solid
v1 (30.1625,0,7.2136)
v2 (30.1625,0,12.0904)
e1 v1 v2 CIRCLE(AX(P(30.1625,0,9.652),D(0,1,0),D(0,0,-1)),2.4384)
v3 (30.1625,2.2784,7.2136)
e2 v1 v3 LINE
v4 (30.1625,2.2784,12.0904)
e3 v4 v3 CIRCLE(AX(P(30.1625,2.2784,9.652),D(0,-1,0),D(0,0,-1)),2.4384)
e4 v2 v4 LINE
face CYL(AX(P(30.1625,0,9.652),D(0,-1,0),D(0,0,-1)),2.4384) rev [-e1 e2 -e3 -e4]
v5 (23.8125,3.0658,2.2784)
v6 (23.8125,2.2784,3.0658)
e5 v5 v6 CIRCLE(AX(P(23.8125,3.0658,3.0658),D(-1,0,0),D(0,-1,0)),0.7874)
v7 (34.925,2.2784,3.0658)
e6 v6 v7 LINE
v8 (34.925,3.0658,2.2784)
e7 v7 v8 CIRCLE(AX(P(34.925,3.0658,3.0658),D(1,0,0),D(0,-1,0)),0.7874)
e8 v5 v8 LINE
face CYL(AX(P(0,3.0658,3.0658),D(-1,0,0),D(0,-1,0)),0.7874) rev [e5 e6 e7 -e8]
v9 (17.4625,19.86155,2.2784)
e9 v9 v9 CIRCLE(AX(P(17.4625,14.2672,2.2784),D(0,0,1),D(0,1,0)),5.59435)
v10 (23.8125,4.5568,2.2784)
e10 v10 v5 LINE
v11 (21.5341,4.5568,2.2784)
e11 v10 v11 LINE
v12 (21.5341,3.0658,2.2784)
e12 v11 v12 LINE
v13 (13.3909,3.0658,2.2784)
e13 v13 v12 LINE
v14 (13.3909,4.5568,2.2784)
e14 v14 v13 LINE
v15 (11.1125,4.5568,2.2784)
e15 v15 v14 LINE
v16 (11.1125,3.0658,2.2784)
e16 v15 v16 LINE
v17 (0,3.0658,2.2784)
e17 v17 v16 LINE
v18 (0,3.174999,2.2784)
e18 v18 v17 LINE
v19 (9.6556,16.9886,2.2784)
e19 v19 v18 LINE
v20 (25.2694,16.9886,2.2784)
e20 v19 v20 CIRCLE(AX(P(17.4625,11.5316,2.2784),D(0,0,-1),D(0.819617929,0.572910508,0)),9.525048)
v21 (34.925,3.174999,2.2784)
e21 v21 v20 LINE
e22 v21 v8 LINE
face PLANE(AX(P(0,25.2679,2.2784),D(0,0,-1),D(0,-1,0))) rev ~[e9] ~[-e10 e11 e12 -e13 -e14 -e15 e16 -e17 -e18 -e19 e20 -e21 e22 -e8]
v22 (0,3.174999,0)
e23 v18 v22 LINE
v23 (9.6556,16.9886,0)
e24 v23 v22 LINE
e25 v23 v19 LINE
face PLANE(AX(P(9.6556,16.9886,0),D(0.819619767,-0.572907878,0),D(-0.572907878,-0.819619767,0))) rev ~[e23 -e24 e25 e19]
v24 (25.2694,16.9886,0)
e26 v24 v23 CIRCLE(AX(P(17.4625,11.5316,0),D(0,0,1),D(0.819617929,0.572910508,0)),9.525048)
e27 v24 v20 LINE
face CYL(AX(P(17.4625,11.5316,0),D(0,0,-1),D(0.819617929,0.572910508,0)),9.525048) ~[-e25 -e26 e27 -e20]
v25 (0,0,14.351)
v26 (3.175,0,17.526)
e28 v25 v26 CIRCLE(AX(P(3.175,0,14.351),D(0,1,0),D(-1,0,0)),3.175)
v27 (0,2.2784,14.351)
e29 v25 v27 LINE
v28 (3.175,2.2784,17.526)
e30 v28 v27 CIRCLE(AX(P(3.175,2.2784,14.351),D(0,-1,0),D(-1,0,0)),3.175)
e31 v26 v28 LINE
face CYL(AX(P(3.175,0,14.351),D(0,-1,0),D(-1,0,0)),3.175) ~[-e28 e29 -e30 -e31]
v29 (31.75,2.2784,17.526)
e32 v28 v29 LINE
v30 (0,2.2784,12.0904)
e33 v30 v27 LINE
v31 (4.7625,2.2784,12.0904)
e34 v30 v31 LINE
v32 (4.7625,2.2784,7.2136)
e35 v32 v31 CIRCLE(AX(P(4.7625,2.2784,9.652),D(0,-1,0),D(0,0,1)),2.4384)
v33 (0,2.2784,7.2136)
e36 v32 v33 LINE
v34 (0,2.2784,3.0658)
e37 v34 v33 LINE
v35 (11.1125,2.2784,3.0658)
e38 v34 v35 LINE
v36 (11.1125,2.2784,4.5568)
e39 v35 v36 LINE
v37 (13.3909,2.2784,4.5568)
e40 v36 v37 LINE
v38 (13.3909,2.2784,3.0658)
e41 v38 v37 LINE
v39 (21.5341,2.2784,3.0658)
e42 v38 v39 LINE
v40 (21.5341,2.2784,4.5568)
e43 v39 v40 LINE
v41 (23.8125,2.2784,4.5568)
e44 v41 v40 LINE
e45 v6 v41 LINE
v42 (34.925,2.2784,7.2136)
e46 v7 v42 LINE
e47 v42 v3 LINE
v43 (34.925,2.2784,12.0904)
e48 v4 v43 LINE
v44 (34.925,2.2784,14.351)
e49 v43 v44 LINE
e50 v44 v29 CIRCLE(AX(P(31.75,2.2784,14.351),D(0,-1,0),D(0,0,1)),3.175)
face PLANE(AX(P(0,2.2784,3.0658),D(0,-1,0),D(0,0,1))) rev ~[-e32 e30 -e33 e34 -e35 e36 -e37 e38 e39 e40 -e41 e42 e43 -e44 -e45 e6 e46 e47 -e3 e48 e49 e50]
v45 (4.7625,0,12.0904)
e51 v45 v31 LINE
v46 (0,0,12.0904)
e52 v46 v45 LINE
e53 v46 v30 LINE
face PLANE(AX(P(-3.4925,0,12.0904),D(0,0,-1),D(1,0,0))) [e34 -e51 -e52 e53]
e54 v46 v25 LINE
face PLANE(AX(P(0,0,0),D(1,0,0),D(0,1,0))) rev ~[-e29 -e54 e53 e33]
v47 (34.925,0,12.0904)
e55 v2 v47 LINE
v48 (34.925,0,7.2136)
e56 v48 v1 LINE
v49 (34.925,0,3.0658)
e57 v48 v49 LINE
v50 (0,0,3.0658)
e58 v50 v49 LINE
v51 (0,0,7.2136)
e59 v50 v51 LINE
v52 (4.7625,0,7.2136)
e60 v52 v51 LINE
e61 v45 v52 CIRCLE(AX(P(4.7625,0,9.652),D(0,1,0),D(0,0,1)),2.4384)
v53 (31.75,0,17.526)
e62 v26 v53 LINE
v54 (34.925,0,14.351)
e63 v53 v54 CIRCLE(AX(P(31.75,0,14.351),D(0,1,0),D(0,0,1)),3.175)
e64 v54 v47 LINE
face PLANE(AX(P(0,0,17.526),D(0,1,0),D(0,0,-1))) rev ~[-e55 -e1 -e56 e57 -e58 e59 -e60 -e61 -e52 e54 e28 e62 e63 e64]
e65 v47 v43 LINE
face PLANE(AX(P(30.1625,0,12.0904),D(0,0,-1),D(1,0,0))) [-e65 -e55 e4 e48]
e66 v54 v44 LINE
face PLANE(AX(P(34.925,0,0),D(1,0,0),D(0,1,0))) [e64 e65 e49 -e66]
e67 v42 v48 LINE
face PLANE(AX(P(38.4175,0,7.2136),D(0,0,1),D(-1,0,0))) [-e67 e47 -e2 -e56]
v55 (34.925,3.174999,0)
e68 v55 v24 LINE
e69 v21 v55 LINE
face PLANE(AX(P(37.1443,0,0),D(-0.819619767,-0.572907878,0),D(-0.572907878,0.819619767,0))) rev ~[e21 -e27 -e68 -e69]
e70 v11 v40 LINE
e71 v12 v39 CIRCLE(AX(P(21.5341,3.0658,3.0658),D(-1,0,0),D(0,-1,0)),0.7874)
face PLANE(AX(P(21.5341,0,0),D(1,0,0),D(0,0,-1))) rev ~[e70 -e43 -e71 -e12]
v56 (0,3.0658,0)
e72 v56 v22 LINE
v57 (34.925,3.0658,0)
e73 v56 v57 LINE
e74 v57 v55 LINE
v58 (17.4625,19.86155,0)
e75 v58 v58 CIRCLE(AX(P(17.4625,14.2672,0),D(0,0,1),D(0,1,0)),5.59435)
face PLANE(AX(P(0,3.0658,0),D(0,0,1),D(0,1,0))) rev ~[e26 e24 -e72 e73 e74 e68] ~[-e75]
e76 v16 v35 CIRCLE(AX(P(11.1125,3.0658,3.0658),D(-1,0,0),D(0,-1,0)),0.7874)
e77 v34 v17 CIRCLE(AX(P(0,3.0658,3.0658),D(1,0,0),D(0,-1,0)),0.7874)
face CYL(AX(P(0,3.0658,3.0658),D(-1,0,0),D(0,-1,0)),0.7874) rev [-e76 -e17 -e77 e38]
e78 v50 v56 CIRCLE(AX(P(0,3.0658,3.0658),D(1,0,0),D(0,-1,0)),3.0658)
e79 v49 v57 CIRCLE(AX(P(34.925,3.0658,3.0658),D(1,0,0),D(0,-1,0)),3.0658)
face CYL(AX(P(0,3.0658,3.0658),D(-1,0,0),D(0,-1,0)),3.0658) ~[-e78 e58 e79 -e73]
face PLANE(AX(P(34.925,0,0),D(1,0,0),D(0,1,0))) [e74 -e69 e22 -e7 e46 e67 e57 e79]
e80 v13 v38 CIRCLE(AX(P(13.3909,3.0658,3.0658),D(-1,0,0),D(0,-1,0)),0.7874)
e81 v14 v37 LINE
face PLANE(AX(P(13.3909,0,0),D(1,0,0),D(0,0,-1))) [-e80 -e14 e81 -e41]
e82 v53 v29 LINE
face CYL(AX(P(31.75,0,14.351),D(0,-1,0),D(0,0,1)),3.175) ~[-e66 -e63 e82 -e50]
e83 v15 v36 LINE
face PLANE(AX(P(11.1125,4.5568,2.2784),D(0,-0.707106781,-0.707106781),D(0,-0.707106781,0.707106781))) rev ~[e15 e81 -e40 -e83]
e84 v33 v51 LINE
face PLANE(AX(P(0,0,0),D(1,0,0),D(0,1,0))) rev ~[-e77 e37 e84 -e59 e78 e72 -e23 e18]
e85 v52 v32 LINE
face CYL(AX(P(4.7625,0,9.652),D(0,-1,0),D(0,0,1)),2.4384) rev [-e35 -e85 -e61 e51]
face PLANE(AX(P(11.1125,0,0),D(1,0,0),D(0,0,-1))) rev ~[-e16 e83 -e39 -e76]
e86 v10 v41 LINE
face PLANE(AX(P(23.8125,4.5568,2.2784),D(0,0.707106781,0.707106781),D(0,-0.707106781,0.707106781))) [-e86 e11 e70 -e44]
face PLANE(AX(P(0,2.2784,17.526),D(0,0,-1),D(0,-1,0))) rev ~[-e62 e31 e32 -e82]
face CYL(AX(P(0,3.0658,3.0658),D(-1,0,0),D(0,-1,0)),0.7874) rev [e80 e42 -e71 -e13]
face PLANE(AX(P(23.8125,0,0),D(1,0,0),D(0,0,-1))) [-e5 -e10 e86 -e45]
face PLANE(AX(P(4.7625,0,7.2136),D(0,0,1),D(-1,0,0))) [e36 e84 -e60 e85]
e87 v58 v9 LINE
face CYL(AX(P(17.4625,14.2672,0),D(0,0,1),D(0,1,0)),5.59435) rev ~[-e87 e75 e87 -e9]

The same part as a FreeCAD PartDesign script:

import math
import FreeCAD as App
import Part
import Sketcher
Q = App.Units.Quantity

doc = App.newDocument("Part")
params = doc.addObject("Spreadsheet::Sheet", "Params")
for row, (alias, value) in enumerate([
    ("sketch1_radius", "0.031 in"),
    ("pad1_length", "1.375 in"),
    ("sketch2_radius", "0.375 in"),
    ("sketch2_width", "1.925 in"),
    ("pocket1_length", "3.4176 mm"),
    ("hole_diameter", "0.4405 in"),
    ("hole_depth", "3.4176 mm"),
    ("sketch4_radius", "0.125 in"),
    ("sketch4_height", "0.19 in"),
    ("sketch4_width", "0.8125 in"),
    ("sketch4_height2", "0.315 in"),
    ("pocket2_length", "3.4176 mm"),
    ("sketch5_radius", "0.125 in"),
    ("sketch5_height", "0.19 in"),
    ("sketch5_width", "0.8125 in"),
    ("sketch5_width2", "0.6875 in"),
    ("pocket3_length", "3.4176 mm"),
    ("sketch6_radius", "0.096 in"),
    ("sketch6_width", "0.325 in"),
    ("pocket4_length", "3.4176 mm"),
    ("sketch7_radius", "0.096 in"),
    ("sketch7_width", "0.325 in"),
    ("pocket5_length", "3.4176 mm"),
    ("pad2_length", "0.0897008 in"),
    ("pad3_length", "0.0897008 in"),
], start=1):
    params.set(f"A{row}", alias)
    params.set(f"B{row}", "=" + value)
    params.setAlias(f"B{row}", alias)

body = doc.addObject("PartDesign::Body", "Body")

sketch1 = doc.addObject("Sketcher::SketchObject", "Sketch")
body.addObject(sketch1)
sketch1.AttachmentSupport = (doc.YZ_Plane, [""])
sketch1.MapMode = "FlatFace"
sketch1.addGeometry(Part.LineSegment(App.Vector(2.2784, 3.0658, 0), App.Vector(2.2784, 17.526, 0)), False)
sketch1.addGeometry(Part.LineSegment(App.Vector(2.2784, 17.526, 0), App.Vector(0, 17.526, 0)), False)
sketch1.addGeometry(Part.LineSegment(App.Vector(0, 17.526, 0), App.Vector(0, 3.0658, 0)), False)
sketch1.addGeometry(Part.ArcOfCircle(Part.Circle(App.Vector(3.0658, 3.0658, 0), App.Vector(0, 0, 1), 3.0658), math.radians(180), math.radians(270)), False)
sketch1.addGeometry(Part.LineSegment(App.Vector(3.0658, 0, 0), App.Vector(25.2679, 0, 0)), False)
sketch1.addGeometry(Part.LineSegment(App.Vector(25.2679, 0, 0), App.Vector(25.2679, 2.2784, 0)), False)
sketch1.addGeometry(Part.LineSegment(App.Vector(25.2679, 2.2784, 0), App.Vector(3.0658, 2.2784, 0)), False)
sketch1.addGeometry(Part.ArcOfCircle(Part.Circle(App.Vector(3.0658, 3.0658, 0), App.Vector(0, 0, 1), 0.7874), math.radians(180), math.radians(270)), False)
sketch1.addConstraint(Sketcher.Constraint("Coincident", 0, 2, 1, 1))
sketch1.addConstraint(Sketcher.Constraint("Coincident", 1, 2, 2, 1))
sketch1.addConstraint(Sketcher.Constraint("Tangent", 2, 2, 3, 1))
sketch1.addConstraint(Sketcher.Constraint("Tangent", 3, 2, 4, 1))
sketch1.addConstraint(Sketcher.Constraint("Coincident", 4, 2, 5, 1))
sketch1.addConstraint(Sketcher.Constraint("Coincident", 5, 2, 6, 1))
sketch1.addConstraint(Sketcher.Constraint("Tangent", 6, 2, 7, 2))
sketch1.addConstraint(Sketcher.Constraint("Tangent", 7, 1, 0, 1))
sketch1.addConstraint(Sketcher.Constraint("Vertical", 0))
sketch1.addConstraint(Sketcher.Constraint("Horizontal", 1))
sketch1.addConstraint(Sketcher.Constraint("Vertical", 2))
sketch1.addConstraint(Sketcher.Constraint("Horizontal", 4))
sketch1.addConstraint(Sketcher.Constraint("Vertical", 5))
sketch1.addConstraint(Sketcher.Constraint("Horizontal", 6))
sketch1.addConstraint(Sketcher.Constraint("Coincident", 7, 3, 3, 3))
sketch1.addConstraint(Sketcher.Constraint("PointOnObject", 1, 2, -2))
sketch1.addConstraint(Sketcher.Constraint("PointOnObject", 3, 2, -1))
sketch1.addConstraint(Sketcher.Constraint("Radius", 7, Q("0.031 in")))
sketch1.addConstraint(Sketcher.Constraint("Radius", 3, Q("0.1207 in")))
sketch1.addConstraint(Sketcher.Constraint("DistanceY", -1, 1, 0, 2, Q("0.69 in")))
sketch1.addConstraint(Sketcher.Constraint("DistanceX", 4, 1, 4, 2, Q("0.8741 in")))
sketch1.setExpression("Constraints[17]", "Params.sketch1_radius")
pad1 = doc.addObject("PartDesign::Pad", "Pad")
body.addObject(pad1)
pad1.Profile = sketch1
pad1.setExpression("Length", "Params.pad1_length")

sketch2 = doc.addObject("Sketcher::SketchObject", "Sketch001")
body.addObject(sketch2)
sketch2.AttachmentSupport = (doc.XY_Plane, [""])
sketch2.MapMode = "FlatFace"
sketch2.addGeometry(Part.LineSegment(App.Vector(41.91, 33.6906, 0), App.Vector(-6.985, 33.6906, 0)), False)
sketch2.addGeometry(Part.LineSegment(App.Vector(-6.985, 33.6906, 0), App.Vector(-6.985, -2.1057, 0)), False)
sketch2.addGeometry(Part.LineSegment(App.Vector(-6.985, -2.1057, 0), App.Vector(41.91, -2.1057, 0)), False)
sketch2.addGeometry(Part.LineSegment(App.Vector(41.91, -2.1057, 0), App.Vector(41.91, 33.6906, 0)), False)
sketch2.addGeometry(Part.LineSegment(App.Vector(37.1443, 0, 0), App.Vector(-2.2193, 0, 0)), False)
sketch2.addGeometry(Part.LineSegment(App.Vector(-2.2193, 0, 0), App.Vector(9.6556, 16.9886, 0)), False)
sketch2.addGeometry(Part.ArcOfCircle(Part.Circle(App.Vector(17.4625, 11.5316, 0), App.Vector(0, 0, 1), 9.525048), math.radians(34.953435), math.radians(145.046565)), False)
sketch2.addGeometry(Part.LineSegment(App.Vector(25.2694, 16.9886, 0), App.Vector(37.1443, 0, 0)), False)
sketch2.addConstraint(Sketcher.Constraint("Coincident", 0, 2, 1, 1))
sketch2.addConstraint(Sketcher.Constraint("Coincident", 1, 2, 2, 1))
sketch2.addConstraint(Sketcher.Constraint("Coincident", 2, 2, 3, 1))
sketch2.addConstraint(Sketcher.Constraint("Coincident", 3, 2, 0, 1))
sketch2.addConstraint(Sketcher.Constraint("Coincident", 4, 2, 5, 1))
sketch2.addConstraint(Sketcher.Constraint("Tangent", 5, 2, 6, 2))
sketch2.addConstraint(Sketcher.Constraint("Tangent", 6, 1, 7, 1))
sketch2.addConstraint(Sketcher.Constraint("Coincident", 7, 2, 4, 1))
sketch2.addConstraint(Sketcher.Constraint("Horizontal", 0))
sketch2.addConstraint(Sketcher.Constraint("Vertical", 1))
sketch2.addConstraint(Sketcher.Constraint("Horizontal", 2))
sketch2.addConstraint(Sketcher.Constraint("Vertical", 3))
sketch2.addConstraint(Sketcher.Constraint("Horizontal", 4))
sketch2.addConstraint(Sketcher.Constraint("PointOnObject", 4, 2, -1))
sketch2.addConstraint(Sketcher.Constraint("Horizontal", 5, 2, 6, 1))
sketch2.addConstraint(Sketcher.Constraint("Radius", 6, Q("0.375 in")))
sketch2.addConstraint(Sketcher.Constraint("DistanceX", 0, 2, 0, 1, Q("1.925 in")))
sketch2.addConstraint(Sketcher.Constraint("DistanceX", -1, 1, 2, 2, Q("1.65 in")))
sketch2.addConstraint(Sketcher.Constraint("DistanceY", 1, 2, 1, 1, Q("1.4093 in")))
sketch2.addConstraint(Sketcher.Constraint("DistanceX", -1, 1, 6, 3, Q("0.6875 in")))
sketch2.addConstraint(Sketcher.Constraint("DistanceY", -1, 1, 6, 3, Q("0.454 in")))
sketch2.addConstraint(Sketcher.Constraint("DistanceX", 4, 2, 4, 1, Q("39.3636 mm")))
sketch2.addConstraint(Sketcher.Constraint("DistanceY", -1, 1, 0, 2, Q("1.3264 in")))
sketch2.setExpression("Constraints[15]", "Params.sketch2_radius")
sketch2.setExpression("Constraints[16]", "Params.sketch2_width")
pocket1 = doc.addObject("PartDesign::Pocket", "Pocket")
body.addObject(pocket1)
pocket1.Profile = sketch2
pocket1.setExpression("Length", "Params.pocket1_length")
pocket1.Reversed = True

sketch3 = doc.addObject("Sketcher::SketchObject", "Sketch002")
body.addObject(sketch3)
sketch3.AttachmentSupport = (doc.XY_Plane, [""])
sketch3.MapMode = "FlatFace"
sketch3.addGeometry(Part.Circle(App.Vector(17.4625, 14.2672, 0), App.Vector(0, 0, 1), 5.59435), False)
sketch3.addConstraint(Sketcher.Constraint("Diameter", 0, Q("0.4405 in")))
sketch3.addConstraint(Sketcher.Constraint("DistanceX", -1, 1, 0, 3, Q("0.6875 in")))
sketch3.addConstraint(Sketcher.Constraint("DistanceY", -1, 1, 0, 3, Q("0.5617 in")))
doc.recompute()
hole = doc.addObject("PartDesign::Hole", "Hole")
body.addObject(hole)
hole.Profile = sketch3
hole.ThreadType = "None"
hole.setExpression("Diameter", "Params.hole_diameter")
hole.DepthType = "Dimension"
hole.setExpression("Depth", "Params.hole_depth")
hole.DrillPoint = "Flat"
hole.Reversed = True

sketch4 = doc.addObject("Sketcher::SketchObject", "Sketch003")
body.addObject(sketch4)
sketch4.AttachmentSupport = (doc.XZ_Plane, [""])
sketch4.MapMode = "FlatFace"
sketch4.addGeometry(Part.LineSegment(App.Vector(-17.4625, 14.351, 0), App.Vector(-17.4625, 22.352, 0)), False)
sketch4.addGeometry(Part.LineSegment(App.Vector(-17.4625, 22.352, 0), App.Vector(3.175, 22.352, 0)), False)
sketch4.addGeometry(Part.LineSegment(App.Vector(3.175, 22.352, 0), App.Vector(3.175, 17.526, 0)), False)
sketch4.addGeometry(Part.ArcOfCircle(Part.Circle(App.Vector(3.175, 14.351, 0), App.Vector(0, 0, 1), 3.175), math.radians(90), math.radians(180)), False)
sketch4.addGeometry(Part.LineSegment(App.Vector(0, 14.351, 0), App.Vector(-17.4625, 14.351, 0)), False)
sketch4.addConstraint(Sketcher.Constraint("Coincident", 0, 2, 1, 1))
sketch4.addConstraint(Sketcher.Constraint("Coincident", 1, 2, 2, 1))
sketch4.addConstraint(Sketcher.Constraint("Coincident", 2, 2, 3, 1))
sketch4.addConstraint(Sketcher.Constraint("Coincident", 3, 2, 4, 1))
sketch4.addConstraint(Sketcher.Constraint("Coincident", 4, 2, 0, 1))
sketch4.addConstraint(Sketcher.Constraint("Vertical", 0))
sketch4.addConstraint(Sketcher.Constraint("Horizontal", 1))
sketch4.addConstraint(Sketcher.Constraint("Vertical", 2))
sketch4.addConstraint(Sketcher.Constraint("Horizontal", 4))
sketch4.addConstraint(Sketcher.Constraint("PointOnObject", 3, 2, -2))
sketch4.addConstraint(Sketcher.Constraint("Vertical", 3, 3, 1, 2))
sketch4.addConstraint(Sketcher.Constraint("Radius", 3, Q("0.125 in")))
sketch4.addConstraint(Sketcher.Constraint("DistanceY", 2, 2, 2, 1, Q("0.19 in")))
sketch4.addConstraint(Sketcher.Constraint("DistanceX", 1, 1, 1, 2, Q("0.8125 in")))
sketch4.addConstraint(Sketcher.Constraint("DistanceY", 0, 1, 0, 2, Q("0.315 in")))
sketch4.addConstraint(Sketcher.Constraint("DistanceY", -1, 1, 0, 2, Q("0.88 in")))
sketch4.setExpression("Constraints[11]", "Params.sketch4_radius")
sketch4.setExpression("Constraints[12]", "Params.sketch4_height")
sketch4.setExpression("Constraints[13]", "Params.sketch4_width")
sketch4.setExpression("Constraints[14]", "Params.sketch4_height2")
pocket2 = doc.addObject("PartDesign::Pocket", "Pocket001")
body.addObject(pocket2)
pocket2.Profile = sketch4
pocket2.setExpression("Length", "Params.pocket2_length")

sketch5 = doc.addObject("Sketcher::SketchObject", "Sketch004")
body.addObject(sketch5)
sketch5.AttachmentSupport = (doc.XZ_Plane, [""])
sketch5.MapMode = "FlatFace"
sketch5.addGeometry(Part.ArcOfCircle(Part.Circle(App.Vector(31.75, 14.351, 0), App.Vector(0, 0, 1), 3.175), math.radians(0), math.radians(90)), False)
sketch5.addGeometry(Part.LineSegment(App.Vector(31.75, 17.526, 0), App.Vector(31.75, 22.352, 0)), False)
sketch5.addGeometry(Part.LineSegment(App.Vector(31.75, 22.352, 0), App.Vector(52.3875, 22.352, 0)), False)
sketch5.addGeometry(Part.LineSegment(App.Vector(52.3875, 22.352, 0), App.Vector(52.3875, 14.351, 0)), False)
sketch5.addGeometry(Part.LineSegment(App.Vector(52.3875, 14.351, 0), App.Vector(34.925, 14.351, 0)), False)
sketch5.addConstraint(Sketcher.Constraint("Coincident", 0, 2, 1, 1))
sketch5.addConstraint(Sketcher.Constraint("Coincident", 1, 2, 2, 1))
sketch5.addConstraint(Sketcher.Constraint("Coincident", 2, 2, 3, 1))
sketch5.addConstraint(Sketcher.Constraint("Coincident", 3, 2, 4, 1))
sketch5.addConstraint(Sketcher.Constraint("Coincident", 4, 2, 0, 1))
sketch5.addConstraint(Sketcher.Constraint("Vertical", 1))
sketch5.addConstraint(Sketcher.Constraint("Horizontal", 2))
sketch5.addConstraint(Sketcher.Constraint("Vertical", 3))
sketch5.addConstraint(Sketcher.Constraint("Horizontal", 4))
sketch5.addConstraint(Sketcher.Constraint("Horizontal", 0, 3, 3, 2))
sketch5.addConstraint(Sketcher.Constraint("Radius", 0, Q("0.125 in")))
sketch5.addConstraint(Sketcher.Constraint("DistanceY", 1, 1, 1, 2, Q("0.19 in")))
sketch5.addConstraint(Sketcher.Constraint("DistanceX", 2, 1, 2, 2, Q("0.8125 in")))
sketch5.addConstraint(Sketcher.Constraint("DistanceX", 4, 2, 4, 1, Q("0.6875 in")))
sketch5.addConstraint(Sketcher.Constraint("DistanceX", -1, 1, 0, 3, Q("1.25 in")))
sketch5.addConstraint(Sketcher.Constraint("DistanceY", -1, 1, 0, 2, Q("0.69 in")))
sketch5.setExpression("Constraints[10]", "Params.sketch5_radius")
sketch5.setExpression("Constraints[11]", "Params.sketch5_height")
sketch5.setExpression("Constraints[12]", "Params.sketch5_width")
sketch5.setExpression("Constraints[13]", "Params.sketch5_width2")
pocket3 = doc.addObject("PartDesign::Pocket", "Pocket002")
body.addObject(pocket3)
pocket3.Profile = sketch5
pocket3.setExpression("Length", "Params.pocket3_length")

sketch6 = doc.addObject("Sketcher::SketchObject", "Sketch005")
body.addObject(sketch6)
sketch6.AttachmentSupport = (doc.XZ_Plane, [""])
sketch6.MapMode = "FlatFace"
sketch6.addGeometry(Part.LineSegment(App.Vector(4.7625, 7.2136, 0), App.Vector(-3.4925, 7.2136, 0)), False)
sketch6.addGeometry(Part.LineSegment(App.Vector(-3.4925, 7.2136, 0), App.Vector(-3.4925, 12.0904, 0)), False)
sketch6.addGeometry(Part.LineSegment(App.Vector(-3.4925, 12.0904, 0), App.Vector(4.7625, 12.0904, 0)), False)
sketch6.addGeometry(Part.ArcOfCircle(Part.Circle(App.Vector(4.7625, 9.652, 0), App.Vector(0, 0, 1), 2.4384), math.radians(-90), math.radians(90)), False)
sketch6.addConstraint(Sketcher.Constraint("Coincident", 0, 2, 1, 1))
sketch6.addConstraint(Sketcher.Constraint("Coincident", 1, 2, 2, 1))
sketch6.addConstraint(Sketcher.Constraint("Tangent", 2, 2, 3, 2))
sketch6.addConstraint(Sketcher.Constraint("Tangent", 3, 1, 0, 1))
sketch6.addConstraint(Sketcher.Constraint("Horizontal", 0))
sketch6.addConstraint(Sketcher.Constraint("Vertical", 1))
sketch6.addConstraint(Sketcher.Constraint("Horizontal", 2))
sketch6.addConstraint(Sketcher.Constraint("Radius", 3, Q("0.096 in")))
sketch6.addConstraint(Sketcher.Constraint("DistanceX", 0, 2, 0, 1, Q("0.325 in")))
sketch6.addConstraint(Sketcher.Constraint("DistanceY", -1, 1, 3, 3, Q("0.38 in")))
sketch6.addConstraint(Sketcher.Constraint("DistanceX", -1, 1, 3, 3, Q("0.1875 in")))
sketch6.setExpression("Constraints[7]", "Params.sketch6_radius")
sketch6.setExpression("Constraints[8]", "Params.sketch6_width")
pocket4 = doc.addObject("PartDesign::Pocket", "Pocket003")
body.addObject(pocket4)
pocket4.Profile = sketch6
pocket4.setExpression("Length", "Params.pocket4_length")

sketch7 = doc.addObject("Sketcher::SketchObject", "Sketch006")
body.addObject(sketch7)
sketch7.AttachmentSupport = (doc.XZ_Plane, [""])
sketch7.MapMode = "FlatFace"
sketch7.addGeometry(Part.LineSegment(App.Vector(38.4175, 7.2136, 0), App.Vector(30.1625, 7.2136, 0)), False)
sketch7.addGeometry(Part.ArcOfCircle(Part.Circle(App.Vector(30.1625, 9.652, 0), App.Vector(0, 0, 1), 2.4384), math.radians(90), math.radians(270)), False)
sketch7.addGeometry(Part.LineSegment(App.Vector(30.1625, 12.0904, 0), App.Vector(38.4175, 12.0904, 0)), False)
sketch7.addGeometry(Part.LineSegment(App.Vector(38.4175, 12.0904, 0), App.Vector(38.4175, 7.2136, 0)), False)
sketch7.addConstraint(Sketcher.Constraint("Tangent", 0, 2, 1, 2))
sketch7.addConstraint(Sketcher.Constraint("Tangent", 1, 1, 2, 1))
sketch7.addConstraint(Sketcher.Constraint("Coincident", 2, 2, 3, 1))
sketch7.addConstraint(Sketcher.Constraint("Coincident", 3, 2, 0, 1))
sketch7.addConstraint(Sketcher.Constraint("Horizontal", 0))
sketch7.addConstraint(Sketcher.Constraint("Horizontal", 2))
sketch7.addConstraint(Sketcher.Constraint("Vertical", 3))
sketch7.addConstraint(Sketcher.Constraint("Radius", 1, Q("0.096 in")))
sketch7.addConstraint(Sketcher.Constraint("DistanceX", 0, 2, 0, 1, Q("0.325 in")))
sketch7.addConstraint(Sketcher.Constraint("DistanceY", -1, 1, 1, 3, Q("0.38 in")))
sketch7.addConstraint(Sketcher.Constraint("DistanceX", -1, 1, 1, 3, Q("1.1875 in")))
sketch7.setExpression("Constraints[7]", "Params.sketch7_radius")
sketch7.setExpression("Constraints[8]", "Params.sketch7_width")
pocket5 = doc.addObject("PartDesign::Pocket", "Pocket004")
body.addObject(pocket5)
pocket5.Profile = sketch7
pocket5.setExpression("Length", "Params.pocket5_length")

sketch8 = doc.addObject("Sketcher::SketchObject", "Sketch007")
body.addObject(sketch8)
sketch8.AttachmentSupport = (doc.YZ_Plane, [""])
sketch8.MapMode = "FlatFace"
sketch8.AttachmentOffset = App.Placement(App.Vector(0, 0, 0.4375 * 25.4), App.Rotation())
sketch8.addGeometry(Part.LineSegment(App.Vector(4.5568, 2.2784, 0), App.Vector(2.2784, 4.5568, 0)), False)
sketch8.addGeometry(Part.LineSegment(App.Vector(2.2784, 4.5568, 0), App.Vector(1.8456, 4.5568, 0)), False)
sketch8.addGeometry(Part.ArcOfCircle(Part.Circle(App.Vector(3.0658, 3.0658, 0), App.Vector(0, 0, 1), 1.926647), math.radians(129.296103), math.radians(320.703897)), False)
sketch8.addGeometry(Part.LineSegment(App.Vector(4.5568, 1.8456, 0), App.Vector(4.5568, 2.2784, 0)), False)
sketch8.addConstraint(Sketcher.Constraint("Coincident", 0, 2, 1, 1))
sketch8.addConstraint(Sketcher.Constraint("Coincident", 1, 2, 2, 1))
sketch8.addConstraint(Sketcher.Constraint("Coincident", 2, 2, 3, 1))
sketch8.addConstraint(Sketcher.Constraint("Coincident", 3, 2, 0, 1))
sketch8.addConstraint(Sketcher.Constraint("Horizontal", 1))
sketch8.addConstraint(Sketcher.Constraint("Vertical", 3))
sketch8.addConstraint(Sketcher.Constraint("Equal", 1, 3))
sketch8.addConstraint(Sketcher.Constraint("Angle", 0, Q("135 deg")))
sketch8.addConstraint(Sketcher.Constraint("Radius", 2, Q("1.9266 mm")))
sketch8.addConstraint(Sketcher.Constraint("DistanceX", 0, 2, 2, 3, Q("0.031 in")))
sketch8.addConstraint(Sketcher.Constraint("DistanceX", 1, 2, 1, 1, Q("0.4328 mm")))
sketch8.addConstraint(Sketcher.Constraint("DistanceX", -1, 1, 2, 3, Q("0.1207 in")))
sketch8.addConstraint(Sketcher.Constraint("DistanceY", -1, 1, 2, 3, Q("0.1207 in")))
pad2 = doc.addObject("PartDesign::Pad", "Pad001")
body.addObject(pad2)
pad2.Profile = sketch8
pad2.setExpression("Length", "Params.pad2_length")

sketch9 = doc.addObject("Sketcher::SketchObject", "Sketch008")
body.addObject(sketch9)
sketch9.AttachmentSupport = (doc.YZ_Plane, [""])
sketch9.MapMode = "FlatFace"
sketch9.AttachmentOffset = App.Placement(App.Vector(0, 0, 0.9375 * 25.4), App.Rotation())
sketch9.addGeometry(Part.LineSegment(App.Vector(4.5568, 2.2784, 0), App.Vector(2.2784, 4.5568, 0)), False)
sketch9.addGeometry(Part.LineSegment(App.Vector(2.2784, 4.5568, 0), App.Vector(1.8456, 4.5568, 0)), False)
sketch9.addGeometry(Part.ArcOfCircle(Part.Circle(App.Vector(3.0658, 3.0658, 0), App.Vector(0, 0, 1), 1.926647), math.radians(129.296103), math.radians(320.703897)), False)
sketch9.addGeometry(Part.LineSegment(App.Vector(4.5568, 1.8456, 0), App.Vector(4.5568, 2.2784, 0)), False)
sketch9.addConstraint(Sketcher.Constraint("Coincident", 0, 2, 1, 1))
sketch9.addConstraint(Sketcher.Constraint("Coincident", 1, 2, 2, 1))
sketch9.addConstraint(Sketcher.Constraint("Coincident", 2, 2, 3, 1))
sketch9.addConstraint(Sketcher.Constraint("Coincident", 3, 2, 0, 1))
sketch9.addConstraint(Sketcher.Constraint("Horizontal", 1))
sketch9.addConstraint(Sketcher.Constraint("Vertical", 3))
sketch9.addConstraint(Sketcher.Constraint("Equal", 1, 3))
sketch9.addConstraint(Sketcher.Constraint("Angle", 0, Q("135 deg")))
sketch9.addConstraint(Sketcher.Constraint("Radius", 2, Q("1.9266 mm")))
sketch9.addConstraint(Sketcher.Constraint("DistanceX", 0, 2, 2, 3, Q("0.031 in")))
sketch9.addConstraint(Sketcher.Constraint("DistanceX", 1, 2, 1, 1, Q("0.4328 mm")))
sketch9.addConstraint(Sketcher.Constraint("DistanceX", -1, 1, 2, 3, Q("0.1207 in")))
sketch9.addConstraint(Sketcher.Constraint("DistanceY", -1, 1, 2, 3, Q("0.1207 in")))
pad3 = doc.addObject("PartDesign::Pad", "Pad002")
body.addObject(pad3)
pad3.Profile = sketch9
pad3.setExpression("Length", "Params.pad3_length")
pad3.Reversed = True

doc.recompute()
